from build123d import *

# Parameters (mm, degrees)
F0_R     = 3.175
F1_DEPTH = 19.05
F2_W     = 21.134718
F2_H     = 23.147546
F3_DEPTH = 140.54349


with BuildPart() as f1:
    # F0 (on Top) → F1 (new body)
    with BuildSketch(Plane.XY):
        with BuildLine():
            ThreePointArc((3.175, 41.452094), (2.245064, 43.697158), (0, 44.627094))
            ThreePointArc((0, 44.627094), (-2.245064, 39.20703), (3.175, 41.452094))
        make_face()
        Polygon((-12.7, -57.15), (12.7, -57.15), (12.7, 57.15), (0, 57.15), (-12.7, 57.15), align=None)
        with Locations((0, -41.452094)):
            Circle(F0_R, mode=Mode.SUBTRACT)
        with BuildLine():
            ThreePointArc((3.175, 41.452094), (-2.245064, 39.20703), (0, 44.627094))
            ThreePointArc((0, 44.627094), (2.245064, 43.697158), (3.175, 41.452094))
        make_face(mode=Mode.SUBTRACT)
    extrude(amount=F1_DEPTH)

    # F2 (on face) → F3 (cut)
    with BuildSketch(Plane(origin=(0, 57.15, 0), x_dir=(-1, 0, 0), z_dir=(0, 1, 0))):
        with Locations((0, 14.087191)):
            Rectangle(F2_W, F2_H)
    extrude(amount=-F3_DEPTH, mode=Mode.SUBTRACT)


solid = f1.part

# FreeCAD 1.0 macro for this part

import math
import FreeCAD as App
import Part
import Sketcher
from FreeCAD import Vector
Q = App.Units.Quantity


def add_polygon(sketch, points):
    """Adds a closed chain of lines whose ends are joined by coincident constraints."""
    first, n = sketch.GeometryCount, len(points)
    for a, b in zip(points, points[1:] + points[:1]):
        sketch.addGeometry(Part.LineSegment(App.Vector(*a, 0), App.Vector(*b, 0)), False)
    for i in range(n):
        sketch.addConstraint(Sketcher.Constraint("Coincident", first + i, 2, first + (i + 1) % n, 1))

doc = App.newDocument("Part")
body = doc.addObject("PartDesign::Body", "Body")

# Sketch on XY plane
sketch1 = doc.addObject("Sketcher::SketchObject", "Sketch")
body.addObject(sketch1)
sketch1.AttachmentSupport = (doc.XY_Plane, [""])
sketch1.MapMode = "FlatFace"
add_polygon(sketch1, [(-12.7, -57.15), (12.7, -57.15), (12.7, 57.15), (-12.7, 57.15)])  # lines 0-3
sketch1.addGeometry(Part.Circle(Vector(0, -41.452094, 0), Vector(0, 0, 1), 3.175), False)  # 4
sketch1.addGeometry(Part.ArcOfCircle(Part.Circle(Vector(0, 41.452094, 0), Vector(0, 0, 1), 3.175), math.radians(0.000002), math.radians(89.999998)), False)  # 5
sketch1.addGeometry(Part.ArcOfCircle(Part.Circle(Vector(0, 41.452094, 0), Vector(0, 0, 1), 3.175), math.radians(90), math.radians(360)), False)  # 6
sketch1.addConstraint(Sketcher.Constraint("Tangent", 5, 1, 6, 2))
sketch1.addConstraint(Sketcher.Constraint("Coincident", 6, 1, 5, 2))
sketch1.addConstraint(Sketcher.Constraint("Horizontal", 0))
sketch1.addConstraint(Sketcher.Constraint("Vertical", 1))
sketch1.addConstraint(Sketcher.Constraint("Horizontal", 2))
sketch1.addConstraint(Sketcher.Constraint("Vertical", 3))
sketch1.addConstraint(Sketcher.Constraint("Equal", 4, 5))
sketch1.addConstraint(Sketcher.Constraint("Symmetric", 4, 3, 5, 3, -1, 1))
sketch1.addConstraint(Sketcher.Constraint("Symmetric", 0, 2, 2, 2, -1, 1))
sketch1.addConstraint(Sketcher.Constraint("PointOnObject", 4, 3, -2))
sketch1.addConstraint(Sketcher.Constraint("PointOnObject", 6, 1, -2))
sketch1.addConstraint(Sketcher.Constraint("Horizontal", 6, 3, 5, 1))
sketch1.addConstraint(Sketcher.Constraint("Diameter", 4, Q("0.25 in")))
sketch1.addConstraint(Sketcher.Constraint("DistanceX", 0, 1, 0, 2, Q("1 in")))
sketch1.addConstraint(Sketcher.Constraint("DistanceY", 1, 1, 1, 2, Q("4.5 in")))
sketch1.addConstraint(Sketcher.Constraint("DistanceY", 4, 3, 6, 3, 82.904188))
pad1 = doc.addObject("PartDesign::Pad", "Pad")
body.addObject(pad1)
pad1.Profile = sketch1
pad1.Length = Q("0.75 in")

# Sketch on XZ plane
sketch2 = doc.addObject("Sketcher::SketchObject", "Sketch001")
body.addObject(sketch2)
sketch2.AttachmentSupport = (doc.XZ_Plane, [""])
sketch2.MapMode = "FlatFace"
sketch2.AttachmentOffset = App.Placement(Vector(0, 0, -2.25 * 25.4), App.Rotation())
add_polygon(sketch2, [(10.567359, 25.660964), (10.567359, 2.513418), (-10.567359, 2.513418), (-10.567359, 25.660964)])  # lines 0-3
sketch2.addConstraint(Sketcher.Constraint("Vertical", 0))
sketch2.addConstraint(Sketcher.Constraint("Horizontal", 1))
sketch2.addConstraint(Sketcher.Constraint("Vertical", 2))
sketch2.addConstraint(Sketcher.Constraint("Horizontal", 3))
sketch2.addConstraint(Sketcher.Constraint("DistanceX", 1, 2, 1, 1, 21.134718))
sketch2.addConstraint(Sketcher.Constraint("DistanceY", 0, 2, 0, 1, 23.147546))
sketch2.addConstraint(Sketcher.Constraint("DistanceX", -1, 1, 0, 2, 10.567359))
sketch2.addConstraint(Sketcher.Constraint("DistanceY", -1, 1, 0, 2, 2.513418))
pocket1 = doc.addObject("PartDesign::Pocket", "Pocket")
body.addObject(pocket1)
pocket1.Profile = sketch2
pocket1.Length = 140.54349
pocket1.Reversed = True

doc.recompute()
